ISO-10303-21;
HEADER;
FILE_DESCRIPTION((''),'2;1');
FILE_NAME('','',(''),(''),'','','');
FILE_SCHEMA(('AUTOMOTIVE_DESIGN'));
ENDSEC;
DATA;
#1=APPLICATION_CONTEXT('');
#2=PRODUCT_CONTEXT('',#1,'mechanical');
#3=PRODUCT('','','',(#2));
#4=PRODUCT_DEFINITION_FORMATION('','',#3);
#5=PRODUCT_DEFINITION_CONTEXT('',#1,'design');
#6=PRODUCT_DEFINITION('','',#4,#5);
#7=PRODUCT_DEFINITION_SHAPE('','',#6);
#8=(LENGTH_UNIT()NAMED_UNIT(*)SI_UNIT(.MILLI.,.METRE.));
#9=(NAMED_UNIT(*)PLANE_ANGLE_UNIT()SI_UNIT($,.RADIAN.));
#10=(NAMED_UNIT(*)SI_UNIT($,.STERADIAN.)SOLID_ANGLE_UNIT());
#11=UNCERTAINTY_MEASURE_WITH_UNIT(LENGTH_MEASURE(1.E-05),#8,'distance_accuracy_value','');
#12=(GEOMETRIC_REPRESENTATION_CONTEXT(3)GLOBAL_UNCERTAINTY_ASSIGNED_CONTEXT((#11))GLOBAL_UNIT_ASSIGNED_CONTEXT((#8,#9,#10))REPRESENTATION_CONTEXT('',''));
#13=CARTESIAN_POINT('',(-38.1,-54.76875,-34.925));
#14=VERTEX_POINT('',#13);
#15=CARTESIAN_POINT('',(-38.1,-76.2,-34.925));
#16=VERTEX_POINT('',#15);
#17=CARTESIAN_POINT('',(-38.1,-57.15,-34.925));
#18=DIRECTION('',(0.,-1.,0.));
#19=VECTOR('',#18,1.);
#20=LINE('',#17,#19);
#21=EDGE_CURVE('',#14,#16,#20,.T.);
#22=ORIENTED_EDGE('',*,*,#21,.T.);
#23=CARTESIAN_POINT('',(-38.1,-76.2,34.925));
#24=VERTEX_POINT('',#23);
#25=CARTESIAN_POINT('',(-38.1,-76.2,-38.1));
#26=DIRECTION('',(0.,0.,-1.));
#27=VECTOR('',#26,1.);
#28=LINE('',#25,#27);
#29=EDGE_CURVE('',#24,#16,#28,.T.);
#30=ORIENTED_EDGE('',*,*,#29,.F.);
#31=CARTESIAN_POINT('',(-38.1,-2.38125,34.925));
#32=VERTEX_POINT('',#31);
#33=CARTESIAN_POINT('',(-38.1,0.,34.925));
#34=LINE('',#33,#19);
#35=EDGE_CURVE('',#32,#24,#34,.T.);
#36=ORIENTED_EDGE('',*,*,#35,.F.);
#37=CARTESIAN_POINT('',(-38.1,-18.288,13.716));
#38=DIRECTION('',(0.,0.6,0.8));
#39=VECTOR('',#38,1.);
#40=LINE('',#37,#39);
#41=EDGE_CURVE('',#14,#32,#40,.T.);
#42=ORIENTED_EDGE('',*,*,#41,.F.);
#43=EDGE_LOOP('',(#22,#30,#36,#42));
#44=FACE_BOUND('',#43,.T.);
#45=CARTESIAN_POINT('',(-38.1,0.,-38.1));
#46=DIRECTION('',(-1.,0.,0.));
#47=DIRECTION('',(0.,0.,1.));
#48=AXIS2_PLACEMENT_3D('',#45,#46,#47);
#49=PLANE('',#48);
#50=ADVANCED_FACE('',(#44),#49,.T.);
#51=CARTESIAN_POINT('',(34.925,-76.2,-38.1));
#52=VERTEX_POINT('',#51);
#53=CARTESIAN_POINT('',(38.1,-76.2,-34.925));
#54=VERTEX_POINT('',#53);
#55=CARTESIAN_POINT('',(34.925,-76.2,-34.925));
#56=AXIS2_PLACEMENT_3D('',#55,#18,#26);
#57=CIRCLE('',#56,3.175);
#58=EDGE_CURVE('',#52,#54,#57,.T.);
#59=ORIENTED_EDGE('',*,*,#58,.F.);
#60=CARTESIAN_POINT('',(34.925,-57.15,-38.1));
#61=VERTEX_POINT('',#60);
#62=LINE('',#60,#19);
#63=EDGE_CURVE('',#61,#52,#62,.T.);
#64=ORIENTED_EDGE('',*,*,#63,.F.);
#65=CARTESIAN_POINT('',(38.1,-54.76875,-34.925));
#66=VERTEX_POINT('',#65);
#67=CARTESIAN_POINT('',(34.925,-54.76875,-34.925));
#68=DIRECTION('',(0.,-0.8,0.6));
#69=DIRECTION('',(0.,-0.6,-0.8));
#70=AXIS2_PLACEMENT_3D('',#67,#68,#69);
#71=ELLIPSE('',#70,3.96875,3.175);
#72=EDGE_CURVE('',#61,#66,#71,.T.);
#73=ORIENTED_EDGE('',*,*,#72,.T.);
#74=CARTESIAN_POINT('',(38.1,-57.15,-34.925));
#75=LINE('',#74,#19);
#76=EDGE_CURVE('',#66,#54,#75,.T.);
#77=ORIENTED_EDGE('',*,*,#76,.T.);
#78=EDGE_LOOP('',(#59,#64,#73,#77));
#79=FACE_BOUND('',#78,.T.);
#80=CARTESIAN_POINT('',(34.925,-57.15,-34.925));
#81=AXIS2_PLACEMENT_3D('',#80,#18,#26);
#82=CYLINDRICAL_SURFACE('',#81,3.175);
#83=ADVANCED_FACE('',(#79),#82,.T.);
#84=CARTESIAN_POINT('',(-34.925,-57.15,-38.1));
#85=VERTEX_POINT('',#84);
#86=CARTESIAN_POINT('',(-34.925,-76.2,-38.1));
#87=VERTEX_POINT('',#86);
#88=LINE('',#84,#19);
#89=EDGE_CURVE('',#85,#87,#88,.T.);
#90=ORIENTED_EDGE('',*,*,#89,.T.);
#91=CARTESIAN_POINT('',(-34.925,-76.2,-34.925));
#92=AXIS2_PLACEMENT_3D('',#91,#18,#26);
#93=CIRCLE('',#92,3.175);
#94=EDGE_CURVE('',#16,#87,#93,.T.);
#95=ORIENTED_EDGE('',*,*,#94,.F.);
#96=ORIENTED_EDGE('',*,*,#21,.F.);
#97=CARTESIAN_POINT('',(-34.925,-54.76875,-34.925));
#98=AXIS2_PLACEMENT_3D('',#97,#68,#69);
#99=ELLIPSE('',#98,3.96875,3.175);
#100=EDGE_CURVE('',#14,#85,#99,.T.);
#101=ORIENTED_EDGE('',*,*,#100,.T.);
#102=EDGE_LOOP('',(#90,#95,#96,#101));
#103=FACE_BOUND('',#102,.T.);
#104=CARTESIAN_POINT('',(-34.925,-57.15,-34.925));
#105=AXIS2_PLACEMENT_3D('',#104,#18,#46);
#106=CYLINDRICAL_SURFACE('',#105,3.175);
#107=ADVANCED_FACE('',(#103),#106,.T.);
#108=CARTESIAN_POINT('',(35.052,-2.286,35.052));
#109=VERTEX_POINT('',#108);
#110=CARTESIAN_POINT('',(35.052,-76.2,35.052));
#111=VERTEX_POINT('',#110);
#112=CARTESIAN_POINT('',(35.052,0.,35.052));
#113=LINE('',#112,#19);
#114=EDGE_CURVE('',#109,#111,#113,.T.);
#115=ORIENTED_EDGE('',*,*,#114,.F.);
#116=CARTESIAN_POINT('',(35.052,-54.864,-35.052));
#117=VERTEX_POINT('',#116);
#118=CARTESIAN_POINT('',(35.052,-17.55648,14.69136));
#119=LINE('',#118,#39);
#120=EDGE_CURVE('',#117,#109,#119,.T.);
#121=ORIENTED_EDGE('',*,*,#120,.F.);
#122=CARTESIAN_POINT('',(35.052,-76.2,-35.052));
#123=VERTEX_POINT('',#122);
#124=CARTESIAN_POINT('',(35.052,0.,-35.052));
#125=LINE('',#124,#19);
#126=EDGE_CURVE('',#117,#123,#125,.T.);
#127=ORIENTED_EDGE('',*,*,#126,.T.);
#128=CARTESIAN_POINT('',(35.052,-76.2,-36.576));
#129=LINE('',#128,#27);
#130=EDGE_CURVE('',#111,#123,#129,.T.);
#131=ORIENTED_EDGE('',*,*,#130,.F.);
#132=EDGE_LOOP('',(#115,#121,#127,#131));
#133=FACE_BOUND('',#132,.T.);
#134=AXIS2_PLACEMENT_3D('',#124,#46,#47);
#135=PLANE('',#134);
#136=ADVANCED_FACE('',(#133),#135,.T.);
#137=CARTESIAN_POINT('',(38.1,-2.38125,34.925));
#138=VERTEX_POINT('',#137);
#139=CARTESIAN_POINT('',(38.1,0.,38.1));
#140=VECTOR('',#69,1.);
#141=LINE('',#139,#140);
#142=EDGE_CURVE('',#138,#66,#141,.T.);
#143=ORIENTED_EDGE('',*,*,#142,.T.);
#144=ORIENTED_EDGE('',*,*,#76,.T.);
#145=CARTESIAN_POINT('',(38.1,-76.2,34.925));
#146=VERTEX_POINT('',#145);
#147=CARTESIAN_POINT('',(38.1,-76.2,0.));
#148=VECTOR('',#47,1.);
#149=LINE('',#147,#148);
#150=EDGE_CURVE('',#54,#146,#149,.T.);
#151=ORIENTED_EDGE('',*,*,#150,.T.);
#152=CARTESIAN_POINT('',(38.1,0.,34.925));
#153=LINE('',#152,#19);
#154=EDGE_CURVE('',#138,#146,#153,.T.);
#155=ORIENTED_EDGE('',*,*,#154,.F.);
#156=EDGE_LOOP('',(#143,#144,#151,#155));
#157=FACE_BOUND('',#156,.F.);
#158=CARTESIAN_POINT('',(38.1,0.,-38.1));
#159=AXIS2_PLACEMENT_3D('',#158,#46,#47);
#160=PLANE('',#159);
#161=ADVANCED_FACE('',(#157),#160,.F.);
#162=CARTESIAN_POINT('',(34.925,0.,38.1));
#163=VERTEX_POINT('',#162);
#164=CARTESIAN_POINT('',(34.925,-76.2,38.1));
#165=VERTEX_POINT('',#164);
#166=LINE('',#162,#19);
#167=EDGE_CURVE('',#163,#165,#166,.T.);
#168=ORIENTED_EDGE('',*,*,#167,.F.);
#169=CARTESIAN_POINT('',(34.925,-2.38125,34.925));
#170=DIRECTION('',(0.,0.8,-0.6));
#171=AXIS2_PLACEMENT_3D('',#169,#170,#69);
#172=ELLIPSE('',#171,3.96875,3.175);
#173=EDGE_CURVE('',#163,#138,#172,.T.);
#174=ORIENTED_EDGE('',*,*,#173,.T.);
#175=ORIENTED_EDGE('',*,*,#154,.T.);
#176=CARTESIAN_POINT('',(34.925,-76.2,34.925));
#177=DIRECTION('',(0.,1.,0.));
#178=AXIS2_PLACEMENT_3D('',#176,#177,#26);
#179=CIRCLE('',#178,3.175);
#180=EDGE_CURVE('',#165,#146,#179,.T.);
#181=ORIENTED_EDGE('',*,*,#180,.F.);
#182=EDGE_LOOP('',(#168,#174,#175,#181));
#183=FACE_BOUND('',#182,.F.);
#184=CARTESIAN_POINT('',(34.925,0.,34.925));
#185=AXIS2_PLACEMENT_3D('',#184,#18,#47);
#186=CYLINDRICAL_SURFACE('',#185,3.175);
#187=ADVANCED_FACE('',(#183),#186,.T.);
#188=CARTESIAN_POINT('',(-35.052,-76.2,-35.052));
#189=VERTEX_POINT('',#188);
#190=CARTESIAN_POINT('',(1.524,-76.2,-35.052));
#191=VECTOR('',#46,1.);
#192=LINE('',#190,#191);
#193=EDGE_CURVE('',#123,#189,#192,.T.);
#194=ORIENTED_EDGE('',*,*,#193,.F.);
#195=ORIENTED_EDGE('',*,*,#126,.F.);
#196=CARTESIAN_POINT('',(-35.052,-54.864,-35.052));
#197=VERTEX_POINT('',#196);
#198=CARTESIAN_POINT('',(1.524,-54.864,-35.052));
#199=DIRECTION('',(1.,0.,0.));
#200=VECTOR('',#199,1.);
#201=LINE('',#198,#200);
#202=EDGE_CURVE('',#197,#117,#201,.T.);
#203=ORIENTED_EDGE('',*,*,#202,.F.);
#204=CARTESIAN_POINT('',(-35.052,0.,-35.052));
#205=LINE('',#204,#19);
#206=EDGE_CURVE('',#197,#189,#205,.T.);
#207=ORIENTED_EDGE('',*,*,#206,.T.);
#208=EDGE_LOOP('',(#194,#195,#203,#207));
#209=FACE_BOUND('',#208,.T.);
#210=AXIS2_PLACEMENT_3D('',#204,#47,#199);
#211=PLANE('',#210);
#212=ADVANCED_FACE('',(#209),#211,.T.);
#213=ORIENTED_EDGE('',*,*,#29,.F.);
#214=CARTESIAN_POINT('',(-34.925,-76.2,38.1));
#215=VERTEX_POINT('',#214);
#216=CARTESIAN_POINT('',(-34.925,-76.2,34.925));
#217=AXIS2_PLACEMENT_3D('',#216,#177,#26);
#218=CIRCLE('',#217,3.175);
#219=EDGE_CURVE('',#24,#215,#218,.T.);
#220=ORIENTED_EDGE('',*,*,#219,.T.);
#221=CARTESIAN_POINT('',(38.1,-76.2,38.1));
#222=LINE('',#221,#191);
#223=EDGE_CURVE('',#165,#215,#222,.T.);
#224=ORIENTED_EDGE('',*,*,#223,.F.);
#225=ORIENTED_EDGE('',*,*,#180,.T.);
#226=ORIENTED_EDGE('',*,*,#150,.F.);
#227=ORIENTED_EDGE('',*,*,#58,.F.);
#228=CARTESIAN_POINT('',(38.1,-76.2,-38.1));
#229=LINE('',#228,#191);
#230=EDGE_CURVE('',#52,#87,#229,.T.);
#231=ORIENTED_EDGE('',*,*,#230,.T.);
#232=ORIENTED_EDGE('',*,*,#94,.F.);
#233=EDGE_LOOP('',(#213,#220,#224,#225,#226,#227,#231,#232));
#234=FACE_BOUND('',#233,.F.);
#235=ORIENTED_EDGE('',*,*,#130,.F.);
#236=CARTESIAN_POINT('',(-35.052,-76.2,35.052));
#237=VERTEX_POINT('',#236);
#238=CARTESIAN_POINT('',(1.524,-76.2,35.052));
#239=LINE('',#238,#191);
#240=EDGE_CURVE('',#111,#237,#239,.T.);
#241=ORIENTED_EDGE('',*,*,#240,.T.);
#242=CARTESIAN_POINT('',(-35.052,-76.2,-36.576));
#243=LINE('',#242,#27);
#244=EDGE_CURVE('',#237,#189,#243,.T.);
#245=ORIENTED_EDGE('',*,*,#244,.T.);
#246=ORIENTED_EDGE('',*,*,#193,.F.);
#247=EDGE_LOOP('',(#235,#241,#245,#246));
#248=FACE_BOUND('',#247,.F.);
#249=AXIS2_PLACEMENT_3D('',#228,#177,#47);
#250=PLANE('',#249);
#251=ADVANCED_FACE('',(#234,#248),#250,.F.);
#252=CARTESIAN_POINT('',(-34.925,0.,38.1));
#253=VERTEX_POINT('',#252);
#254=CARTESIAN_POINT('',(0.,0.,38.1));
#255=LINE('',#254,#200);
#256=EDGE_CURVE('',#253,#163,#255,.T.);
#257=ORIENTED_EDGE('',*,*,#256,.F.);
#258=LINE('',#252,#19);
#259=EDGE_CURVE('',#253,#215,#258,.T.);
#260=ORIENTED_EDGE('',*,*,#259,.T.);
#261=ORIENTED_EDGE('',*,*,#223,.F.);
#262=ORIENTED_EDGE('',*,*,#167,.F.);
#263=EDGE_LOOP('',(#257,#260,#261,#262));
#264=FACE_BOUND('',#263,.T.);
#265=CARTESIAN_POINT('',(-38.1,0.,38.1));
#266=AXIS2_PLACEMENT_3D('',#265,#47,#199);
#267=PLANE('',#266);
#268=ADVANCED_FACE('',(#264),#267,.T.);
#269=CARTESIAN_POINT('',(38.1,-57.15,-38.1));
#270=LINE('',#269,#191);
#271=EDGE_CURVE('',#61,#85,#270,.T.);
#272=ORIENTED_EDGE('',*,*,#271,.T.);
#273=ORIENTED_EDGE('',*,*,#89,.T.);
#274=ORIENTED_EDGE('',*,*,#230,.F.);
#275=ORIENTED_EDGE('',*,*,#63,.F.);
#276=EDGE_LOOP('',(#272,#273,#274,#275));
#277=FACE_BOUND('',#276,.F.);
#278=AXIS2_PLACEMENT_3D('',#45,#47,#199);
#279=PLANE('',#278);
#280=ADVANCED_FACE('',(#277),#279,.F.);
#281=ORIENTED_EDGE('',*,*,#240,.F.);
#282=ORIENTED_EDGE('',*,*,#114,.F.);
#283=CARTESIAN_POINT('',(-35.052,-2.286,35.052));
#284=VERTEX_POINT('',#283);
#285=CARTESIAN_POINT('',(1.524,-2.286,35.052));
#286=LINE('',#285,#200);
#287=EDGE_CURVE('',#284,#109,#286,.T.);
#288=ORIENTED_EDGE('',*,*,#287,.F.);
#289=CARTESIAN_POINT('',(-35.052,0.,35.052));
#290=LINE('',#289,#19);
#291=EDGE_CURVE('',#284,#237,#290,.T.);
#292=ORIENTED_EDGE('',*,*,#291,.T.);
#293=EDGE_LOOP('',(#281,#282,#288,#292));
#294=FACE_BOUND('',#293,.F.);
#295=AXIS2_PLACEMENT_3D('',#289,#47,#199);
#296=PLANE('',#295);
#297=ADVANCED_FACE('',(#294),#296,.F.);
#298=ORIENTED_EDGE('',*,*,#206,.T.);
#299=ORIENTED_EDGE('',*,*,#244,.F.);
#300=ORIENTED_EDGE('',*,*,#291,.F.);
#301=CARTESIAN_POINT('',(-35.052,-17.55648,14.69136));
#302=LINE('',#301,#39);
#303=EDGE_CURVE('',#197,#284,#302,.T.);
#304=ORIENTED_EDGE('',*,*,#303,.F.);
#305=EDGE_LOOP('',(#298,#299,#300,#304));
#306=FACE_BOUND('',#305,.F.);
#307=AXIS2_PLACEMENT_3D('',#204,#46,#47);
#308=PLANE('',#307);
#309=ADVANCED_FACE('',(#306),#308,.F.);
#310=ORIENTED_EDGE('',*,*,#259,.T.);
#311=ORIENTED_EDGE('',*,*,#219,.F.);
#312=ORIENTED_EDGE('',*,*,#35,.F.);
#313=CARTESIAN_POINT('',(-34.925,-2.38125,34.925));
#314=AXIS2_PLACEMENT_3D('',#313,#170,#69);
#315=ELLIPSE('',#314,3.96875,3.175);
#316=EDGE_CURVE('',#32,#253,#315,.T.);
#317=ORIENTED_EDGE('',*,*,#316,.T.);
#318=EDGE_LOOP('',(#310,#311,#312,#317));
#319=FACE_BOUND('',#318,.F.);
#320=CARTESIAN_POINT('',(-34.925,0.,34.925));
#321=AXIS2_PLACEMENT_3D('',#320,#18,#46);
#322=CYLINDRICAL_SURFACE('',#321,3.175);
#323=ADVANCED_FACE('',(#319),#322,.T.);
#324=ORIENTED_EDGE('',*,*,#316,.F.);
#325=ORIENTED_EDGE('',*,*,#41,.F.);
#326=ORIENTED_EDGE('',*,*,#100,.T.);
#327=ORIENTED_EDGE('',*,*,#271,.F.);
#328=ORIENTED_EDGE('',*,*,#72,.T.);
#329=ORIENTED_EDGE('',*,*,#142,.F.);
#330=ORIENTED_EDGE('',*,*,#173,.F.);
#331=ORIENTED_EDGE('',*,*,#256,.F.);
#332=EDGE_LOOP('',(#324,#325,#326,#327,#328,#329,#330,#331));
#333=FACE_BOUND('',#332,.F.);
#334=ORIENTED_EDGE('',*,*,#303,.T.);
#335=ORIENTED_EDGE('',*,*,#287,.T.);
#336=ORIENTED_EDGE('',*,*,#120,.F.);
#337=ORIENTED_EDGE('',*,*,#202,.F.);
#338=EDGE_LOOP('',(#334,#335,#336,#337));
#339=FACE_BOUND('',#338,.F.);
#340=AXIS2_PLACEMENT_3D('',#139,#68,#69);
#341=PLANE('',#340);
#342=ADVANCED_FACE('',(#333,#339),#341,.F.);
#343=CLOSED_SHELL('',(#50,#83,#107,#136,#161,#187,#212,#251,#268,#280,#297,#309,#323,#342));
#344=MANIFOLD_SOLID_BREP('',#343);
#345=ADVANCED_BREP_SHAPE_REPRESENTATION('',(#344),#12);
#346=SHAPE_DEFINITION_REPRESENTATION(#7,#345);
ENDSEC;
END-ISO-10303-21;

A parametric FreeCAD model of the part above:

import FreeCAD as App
import Part
import Sketcher
from FreeCAD import Vector
Q = App.Units.Quantity


def edges_at(feature, points):
    """Names of the edges that pass closest to the given points."""
    edges = feature.Shape.Edges
    near = lambda p: min(range(len(edges)), key=lambda i: edges[i].distToShape(Part.Vertex(*p))[0])
    return sorted({f"Edge{near(p) + 1}" for p in points})

doc = App.newDocument("Part")
body = doc.addObject("PartDesign::Body", "Body")

# Sketch on XZ plane
sketch1 = body.newObject("Sketcher::SketchObject", "Sketch")
sketch1.AttachmentSupport = (doc.getObject("XZ_Plane"), [""])
sketch1.MapMode = "FlatFace"
sketch1.addGeometry(Part.LineSegment(Vector(-38, 38, 0), Vector(-38, -38, 0)), False)
sketch1.addGeometry(Part.LineSegment(Vector(-38, -38, 0), Vector(38, -38, 0)), False)
sketch1.addGeometry(Part.LineSegment(Vector(38, -38, 0), Vector(38, 38, 0)), False)
sketch1.addGeometry(Part.LineSegment(Vector(38, 38, 0), Vector(-38, 38, 0)), False)
sketch1.addGeometry(Part.LineSegment(Vector(35, -35, 0), Vector(-35, -35, 0)), False)
sketch1.addGeometry(Part.LineSegment(Vector(-35, -35, 0), Vector(-35, 35, 0)), False)
sketch1.addGeometry(Part.LineSegment(Vector(-35, 35, 0), Vector(35, 35, 0)), False)
sketch1.addGeometry(Part.LineSegment(Vector(35, 35, 0), Vector(35, -35, 0)), False)
sketch1.addConstraint(Sketcher.Constraint("Coincident", 0, 2, 1, 1))
sketch1.addConstraint(Sketcher.Constraint("Coincident", 1, 2, 2, 1))
sketch1.addConstraint(Sketcher.Constraint("Coincident", 2, 2, 3, 1))
sketch1.addConstraint(Sketcher.Constraint("Coincident", 3, 2, 0, 1))
sketch1.addConstraint(Sketcher.Constraint("Coincident", 4, 2, 5, 1))
sketch1.addConstraint(Sketcher.Constraint("Coincident", 5, 2, 6, 1))
sketch1.addConstraint(Sketcher.Constraint("Coincident", 6, 2, 7, 1))
sketch1.addConstraint(Sketcher.Constraint("Coincident", 7, 2, 4, 1))
sketch1.addConstraint(Sketcher.Constraint("Vertical", 0))
sketch1.addConstraint(Sketcher.Constraint("Horizontal", 1))
sketch1.addConstraint(Sketcher.Constraint("Vertical", 2))
sketch1.addConstraint(Sketcher.Constraint("Horizontal", 3))
sketch1.addConstraint(Sketcher.Constraint("Horizontal", 4))
sketch1.addConstraint(Sketcher.Constraint("Vertical", 5))
sketch1.addConstraint(Sketcher.Constraint("Horizontal", 6))
sketch1.addConstraint(Sketcher.Constraint("Vertical", 7))
sketch1.addConstraint(Sketcher.Constraint("Symmetric", 0, 2, 2, 2, -1, 1))
sketch1.addConstraint(Sketcher.Constraint("Symmetric", 4, 2, 6, 2, -1, 1))
sketch1.addConstraint(Sketcher.Constraint("Equal", 3, 0))
sketch1.addConstraint(Sketcher.Constraint("Equal", 6, 5))
sketch1.addConstraint(Sketcher.Constraint("DistanceX", 1, 1, 1, 2, Q("3 in")))
sketch1.addConstraint(Sketcher.Constraint("DistanceX", 4, 2, 4, 1, Q("2.76 in")))
pad1 = body.newObject("PartDesign::Pad", "Pad")
pad1.Profile = sketch1
pad1.Length = Q("9.5 in")

# Sketch on YZ plane
sketch2 = body.newObject("Sketcher::SketchObject", "Sketch001")
sketch2.AttachmentSupport = (doc.getObject("YZ_Plane"), [""])
sketch2.MapMode = "FlatFace"
sketch2.AttachmentOffset = App.Placement(Vector(0, 0, 1.5 * 25.4), App.Rotation())
sketch2.addGeometry(Part.LineSegment(Vector(0, -38, 0), Vector(0, 38, 0)), False)
sketch2.addGeometry(Part.LineSegment(Vector(0, 38, 0), Vector(-57, -38, 0)), False)
sketch2.addGeometry(Part.LineSegment(Vector(-57, -38, 0), Vector(0, -38, 0)), False)
sketch2.addConstraint(Sketcher.Constraint("Coincident", 0, 2, 1, 1))
sketch2.addConstraint(Sketcher.Constraint("Coincident", 1, 2, 2, 1))
sketch2.addConstraint(Sketcher.Constraint("Coincident", 2, 2, 0, 1))
sketch2.addConstraint(Sketcher.Constraint("Vertical", 0))
sketch2.addConstraint(Sketcher.Constraint("Horizontal", 2))
sketch2.addConstraint(Sketcher.Constraint("Symmetric", 0, 2, 2, 2, -1, 1))
sketch2.addConstraint(Sketcher.Constraint("DistanceY", 0, 1, 0, 2, Q("3 in")))
sketch2.addConstraint(Sketcher.Constraint("DistanceX", 2, 1, 2, 2, Q("2.25 in")))
pocket1 = body.newObject("PartDesign::Pocket", "Pocket")
pocket1.Profile = sketch2
pocket1.Type = "ThroughAll"

# Sketch on YZ plane
sketch3 = body.newObject("Sketcher::SketchObject", "Sketch002")
sketch3.AttachmentSupport = (doc.getObject("YZ_Plane"), [""])
sketch3.MapMode = "FlatFace"
sketch3.AttachmentOffset = App.Placement(Vector(0, 0, 1.5 * 25.4), App.Rotation())
sketch3.addGeometry(Part.LineSegment(Vector(-241, 38, 0), Vector(-241, -38, 0)), False)
sketch3.addGeometry(Part.LineSegment(Vector(-241, -38, 0), Vector(-76, -38, 0)), False)
sketch3.addGeometry(Part.LineSegment(Vector(-76, -38, 0), Vector(-76, 38, 0)), False)
sketch3.addGeometry(Part.LineSegment(Vector(-76, 38, 0), Vector(-241, 38, 0)), False)
sketch3.addConstraint(Sketcher.Constraint("Coincident", 0, 2, 1, 1))
sketch3.addConstraint(Sketcher.Constraint("Coincident", 1, 2, 2, 1))
sketch3.addConstraint(Sketcher.Constraint("Coincident", 2, 2, 3, 1))
sketch3.addConstraint(Sketcher.Constraint("Coincident", 3, 2, 0, 1))
sketch3.addConstraint(Sketcher.Constraint("Vertical", 0))
sketch3.addConstraint(Sketcher.Constraint("Horizontal", 1))
sketch3.addConstraint(Sketcher.Constraint("Vertical", 2))
sketch3.addConstraint(Sketcher.Constraint("Horizontal", 3))
sketch3.addConstraint(Sketcher.Constraint("DistanceY", 0, 2, 0, 1, Q("3 in")))
sketch3.addConstraint(Sketcher.Constraint("DistanceX", 1, 1, 1, 2, Q("6.5 in")))
sketch3.addConstraint(Sketcher.Constraint("DistanceX", 1, 2, -1, 1, Q("3 in")))
sketch3.addConstraint(Sketcher.Constraint("DistanceY", 0, 2, -1, 1, Q("1.5 in")))
pocket2 = body.newObject("PartDesign::Pocket", "Pocket001")
pocket2.Profile = sketch3
pocket2.Type = "ThroughAll"
doc.recompute()

fillet = body.newObject("PartDesign::Fillet", "Fillet")
fillet.Base = (pocket2, edges_at(pocket2, [
    (38.1, -38.1, 38.1),
    (-38.1, -38.1, 38.1),
    (-38.1, -66.675, -38.1),
    (38.1, -66.675, -38.1),
]))
fillet.Radius = Q("0.125 in")

doc.recompute()
